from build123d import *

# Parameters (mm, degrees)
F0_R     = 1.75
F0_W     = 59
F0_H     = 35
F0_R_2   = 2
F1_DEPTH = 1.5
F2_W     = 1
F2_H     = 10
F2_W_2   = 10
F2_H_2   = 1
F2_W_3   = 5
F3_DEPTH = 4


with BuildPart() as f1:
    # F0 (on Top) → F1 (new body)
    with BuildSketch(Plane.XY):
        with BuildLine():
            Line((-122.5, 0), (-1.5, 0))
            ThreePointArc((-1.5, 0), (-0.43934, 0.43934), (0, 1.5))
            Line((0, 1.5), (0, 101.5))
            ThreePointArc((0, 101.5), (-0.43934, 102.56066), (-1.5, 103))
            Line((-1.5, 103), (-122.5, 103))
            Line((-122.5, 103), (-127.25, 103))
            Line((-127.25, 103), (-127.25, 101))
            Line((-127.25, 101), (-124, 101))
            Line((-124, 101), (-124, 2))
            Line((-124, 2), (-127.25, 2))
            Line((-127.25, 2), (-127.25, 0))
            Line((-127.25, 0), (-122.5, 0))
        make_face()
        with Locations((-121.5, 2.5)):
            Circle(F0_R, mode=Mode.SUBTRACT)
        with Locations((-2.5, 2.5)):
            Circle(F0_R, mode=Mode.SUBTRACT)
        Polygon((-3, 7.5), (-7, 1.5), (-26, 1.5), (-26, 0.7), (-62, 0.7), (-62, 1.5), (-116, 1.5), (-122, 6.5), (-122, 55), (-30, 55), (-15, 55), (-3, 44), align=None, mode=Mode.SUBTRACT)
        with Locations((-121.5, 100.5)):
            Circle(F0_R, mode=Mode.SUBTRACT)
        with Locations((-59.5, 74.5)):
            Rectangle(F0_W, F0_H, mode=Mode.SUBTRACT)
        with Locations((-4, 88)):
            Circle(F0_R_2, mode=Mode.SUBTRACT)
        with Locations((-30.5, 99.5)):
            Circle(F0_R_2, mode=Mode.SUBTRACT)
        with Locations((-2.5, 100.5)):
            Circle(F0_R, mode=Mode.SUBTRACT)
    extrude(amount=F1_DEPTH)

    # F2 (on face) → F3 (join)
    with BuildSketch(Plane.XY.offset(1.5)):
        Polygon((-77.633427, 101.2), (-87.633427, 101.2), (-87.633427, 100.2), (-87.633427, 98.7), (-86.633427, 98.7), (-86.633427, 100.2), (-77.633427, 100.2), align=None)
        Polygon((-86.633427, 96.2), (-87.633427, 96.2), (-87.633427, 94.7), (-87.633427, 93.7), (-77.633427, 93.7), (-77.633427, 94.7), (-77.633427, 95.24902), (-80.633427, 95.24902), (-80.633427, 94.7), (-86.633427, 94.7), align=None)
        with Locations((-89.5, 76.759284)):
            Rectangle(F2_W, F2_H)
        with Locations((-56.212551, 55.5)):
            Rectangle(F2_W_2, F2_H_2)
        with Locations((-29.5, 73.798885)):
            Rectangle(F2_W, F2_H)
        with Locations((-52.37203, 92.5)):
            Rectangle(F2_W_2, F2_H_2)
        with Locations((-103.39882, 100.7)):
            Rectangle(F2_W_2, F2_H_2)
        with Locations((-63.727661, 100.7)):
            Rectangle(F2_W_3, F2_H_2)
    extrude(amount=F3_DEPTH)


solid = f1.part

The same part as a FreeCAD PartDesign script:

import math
import FreeCAD as App
import Part
import Sketcher
from FreeCAD import Vector
Q = App.Units.Quantity


def add_polygon(sketch, points):
    """Adds a closed chain of lines whose ends are joined by coincident constraints."""
    first, n = sketch.GeometryCount, len(points)
    for a, b in zip(points, points[1:] + points[:1]):
        sketch.addGeometry(Part.LineSegment(App.Vector(*a, 0), App.Vector(*b, 0)), False)
    for i in range(n):
        sketch.addConstraint(Sketcher.Constraint("Coincident", first + i, 2, first + (i + 1) % n, 1))

doc = App.newDocument("Part")
body = doc.addObject("PartDesign::Body", "Body")

# Sketch on XY plane
sketch1 = doc.addObject("Sketcher::SketchObject", "Sketch")
body.addObject(sketch1)
sketch1.AttachmentSupport = (doc.XY_Plane, [""])
sketch1.MapMode = "FlatFace"
sketch1.addGeometry(Part.ArcOfCircle(Part.Circle(Vector(-1.5, 1.5, 0), Vector(0, 0, 1), 1.5), math.radians(-90), math.radians(0)), False)  # 0
sketch1.addGeometry(Part.LineSegment(Vector(0, 1.5, 0), Vector(0, 101.5, 0)), False)  # 1
sketch1.addGeometry(Part.ArcOfCircle(Part.Circle(Vector(-1.5, 101.5, 0), Vector(0, 0, 1), 1.5), math.radians(0), math.radians(90)), False)  # 2
sketch1.addGeometry(Part.LineSegment(Vector(-1.5, 103, 0), Vector(-127.2, 103, 0)), False)  # 3
sketch1.addGeometry(Part.LineSegment(Vector(-127.2, 103, 0), Vector(-127.2, 101, 0)), False)  # 4
sketch1.addGeometry(Part.LineSegment(Vector(-127.2, 101, 0), Vector(-124, 101, 0)), False)  # 5
sketch1.addGeometry(Part.LineSegment(Vector(-124, 101, 0), Vector(-124, 2, 0)), False)  # 6
sketch1.addGeometry(Part.LineSegment(Vector(-124, 2, 0), Vector(-127.2, 2, 0)), False)  # 7
sketch1.addGeometry(Part.LineSegment(Vector(-127.2, 2, 0), Vector(-127.2, 0, 0)), False)  # 8
sketch1.addGeometry(Part.LineSegment(Vector(-127.2, 0, 0), Vector(-1.5, 0, 0)), False)  # 9
sketch1.addGeometry(Part.Circle(Vector(-121.5, 2.5, 0), Vector(0, 0, 1), 1.8), False)  # 10
add_polygon(sketch1, [(-3, 44), (-3, 7.5), (-7, 1.5), (-26, 1.5), (-26, 0.7), (-62, 0.7), (-62, 1.5), (-116, 1.5), (-122, 6.5), (-122, 55), (-15, 55)])  # lines 11-21
sketch1.addGeometry(Part.Circle(Vector(-2.5, 2.5, 0), Vector(0, 0, 1), 1.8), False)  # 22
sketch1.addGeometry(Part.Circle(Vector(-121.5, 100.5, 0), Vector(0, 0, 1), 1.8), False)  # 23
add_polygon(sketch1, [(-30, 57), (-89, 57), (-89, 92), (-30, 92)])  # lines 24-27
sketch1.addGeometry(Part.Circle(Vector(-4, 88, 0), Vector(0, 0, 1), 2), False)  # 28
sketch1.addGeometry(Part.Circle(Vector(-30.5, 99.5, 0), Vector(0, 0, 1), 2), False)  # 29
sketch1.addGeometry(Part.Circle(Vector(-2.5, 100.5, 0), Vector(0, 0, 1), 1.8), False)  # 30
sketch1.addConstraint(Sketcher.Constraint("Tangent", 0, 2, 1, 1))
sketch1.addConstraint(Sketcher.Constraint("Tangent", 1, 2, 2, 1))
sketch1.addConstraint(Sketcher.Constraint("Tangent", 2, 2, 3, 1))
sketch1.addConstraint(Sketcher.Constraint("Coincident", 3, 2, 4, 1))
sketch1.addConstraint(Sketcher.Constraint("Coincident", 4, 2, 5, 1))
sketch1.addConstraint(Sketcher.Constraint("Coincident", 5, 2, 6, 1))
sketch1.addConstraint(Sketcher.Constraint("Coincident", 6, 2, 7, 1))
sketch1.addConstraint(Sketcher.Constraint("Coincident", 7, 2, 8, 1))
sketch1.addConstraint(Sketcher.Constraint("Coincident", 8, 2, 9, 1))
sketch1.addConstraint(Sketcher.Constraint("Tangent", 9, 2, 0, 1))
sketch1.addConstraint(Sketcher.Constraint("Vertical", 1))
sketch1.addConstraint(Sketcher.Constraint("Horizontal", 3))
sketch1.addConstraint(Sketcher.Constraint("Vertical", 4))
sketch1.addConstraint(Sketcher.Constraint("Horizontal", 5))
sketch1.addConstraint(Sketcher.Constraint("Vertical", 6))
sketch1.addConstraint(Sketcher.Constraint("Horizontal", 7))
sketch1.addConstraint(Sketcher.Constraint("Vertical", 8))
sketch1.addConstraint(Sketcher.Constraint("Horizontal", 9))
sketch1.addConstraint(Sketcher.Constraint("Vertical", 11))
sketch1.addConstraint(Sketcher.Constraint("Horizontal", 13))
sketch1.addConstraint(Sketcher.Constraint("Vertical", 14))
sketch1.addConstraint(Sketcher.Constraint("Horizontal", 15))
sketch1.addConstraint(Sketcher.Constraint("Vertical", 16))
sketch1.addConstraint(Sketcher.Constraint("Horizontal", 17))
sketch1.addConstraint(Sketcher.Constraint("Vertical", 19))
sketch1.addConstraint(Sketcher.Constraint("Horizontal", 20))
sketch1.addConstraint(Sketcher.Constraint("Horizontal", 24))
sketch1.addConstraint(Sketcher.Constraint("Vertical", 25))
sketch1.addConstraint(Sketcher.Constraint("Horizontal", 26))
sketch1.addConstraint(Sketcher.Constraint("Vertical", 27))
sketch1.addConstraint(Sketcher.Constraint("Equal", 0, 2))
sketch1.addConstraint(Sketcher.Constraint("Equal", 10, 22))
sketch1.addConstraint(Sketcher.Constraint("Equal", 22, 23))
sketch1.addConstraint(Sketcher.Constraint("Equal", 28, 29))
sketch1.addConstraint(Sketcher.Constraint("Equal", 23, 30))
sketch1.addConstraint(Sketcher.Constraint("PointOnObject", 0, 2, -2))
sketch1.addConstraint(Sketcher.Constraint("PointOnObject", 8, 2, -1))
sketch1.addConstraint(Sketcher.Constraint("Horizontal", 10, 3, 22, 3))
sketch1.addConstraint(Sketcher.Constraint("Horizontal", 23, 3, 30, 3))
sketch1.addConstraint(Sketcher.Constraint("Horizontal", 0, 2, 12, 2))
sketch1.addConstraint(Sketcher.Constraint("Horizontal", 13, 2, 16, 2))
sketch1.addConstraint(Sketcher.Constraint("Vertical", 10, 3, 23, 3))
sketch1.addConstraint(Sketcher.Constraint("Vertical", 22, 3, 30, 3))
sketch1.addConstraint(Sketcher.Constraint("Vertical", 4, 2, 7, 2))
sketch1.addConstraint(Sketcher.Constraint("Equal", 4, 8))
sketch1.addConstraint(Sketcher.Constraint("Diameter", 28, Q("4 mm")))
sketch1.addConstraint(Sketcher.Constraint("Diameter", 10, Q("3.5 mm")))
sketch1.addConstraint(Sketcher.Constraint("Radius", 0, Q("1.500001 mm")))
sketch1.addConstraint(Sketcher.Constraint("DistanceX", 13, 2, 13, 1, Q("19 mm")))
sketch1.addConstraint(Sketcher.Constraint("DistanceX", 15, 2, 15, 1, Q("36 mm")))
sketch1.addConstraint(Sketcher.Constraint("DistanceX", 17, 2, 17, 1, Q("54 mm")))
sketch1.addConstraint(Sketcher.Constraint("DistanceX", 20, 1, 20, 2, Q("107 mm")))
sketch1.addConstraint(Sketcher.Constraint("DistanceX", 24, 2, 24, 1, Q("59 mm")))
sketch1.addConstraint(Sketcher.Constraint("DistanceY", 1, 1, 1, 2, Q("100 mm")))
sketch1.addConstraint(Sketcher.Constraint("DistanceY", 4, 2, 4, 1, Q("2 mm")))
sketch1.addConstraint(Sketcher.Constraint("DistanceY", 25, 1, 25, 2, Q("35 mm")))
sketch1.addConstraint(Sketcher.Constraint("DistanceY", 11, 2, 11, 1, Q("36.5 mm")))
sketch1.addConstraint(Sketcher.Constraint("DistanceY", 14, 2, 14, 1, Q("0.8 mm")))
sketch1.addConstraint(Sketcher.Constraint("DistanceY", 19, 1, 19, 2, Q("48.5 mm")))
sketch1.addConstraint(Sketcher.Constraint("DistanceX", 28, 3, -1, 1, Q("4 mm")))
sketch1.addConstraint(Sketcher.Constraint("DistanceY", -1, 1, 28, 3, Q("88 mm")))
sketch1.addConstraint(Sketcher.Constraint("DistanceX", 5, 2, -1, 1, Q("124 mm")))
sketch1.addConstraint(Sketcher.Constraint("DistanceX", 11, 2, -1, 1, Q("3 mm")))
sketch1.addConstraint(Sketcher.Constraint("DistanceX", 12, 2, -1, 1, Q("7 mm")))
sketch1.addConstraint(Sketcher.Constraint("DistanceX", 18, 2, -1, 1, Q("122 mm")))
sketch1.addConstraint(Sketcher.Constraint("DistanceY", -1, 1, 19, 2, Q("55 mm")))
sketch1.addConstraint(Sketcher.Constraint("DistanceY", -1, 1, 21, 2, Q("44 mm")))
sketch1.addConstraint(Sketcher.Constraint("DistanceX", 24, 2, -1, 1, Q("89 mm")))
sketch1.addConstraint(Sketcher.Constraint("DistanceY", -1, 1, 24, 2, Q("57 mm")))
sketch1.addConstraint(Sketcher.Constraint("DistanceX", 10, 3, 0, 3, Q("119.999999 mm")))
sketch1.addConstraint(Sketcher.Constraint("DistanceY", 0, 3, 10, 3, Q("0.999999 mm")))
sketch1.addConstraint(Sketcher.Constraint("DistanceX", 22, 3, 0, 3, Q("0.999999 mm")))
sketch1.addConstraint(Sketcher.Constraint("DistanceY", 10, 3, 23, 3, Q("98 mm")))
sketch1.addConstraint(Sketcher.Constraint("DistanceX", 29, 3, 2, 3, Q("28.999999 mm")))
sketch1.addConstraint(Sketcher.Constraint("DistanceY", 29, 3, 2, 3, Q("1.999999 mm")))
sketch1.addConstraint(Sketcher.Constraint("DistanceX", 3, 2, 3, 1, Q("125.75 mm")))
pad1 = doc.addObject("PartDesign::Pad", "Pad")
body.addObject(pad1)
pad1.Profile = sketch1
pad1.Length = 1.5

# Sketch on XY plane
sketch2 = doc.addObject("Sketcher::SketchObject", "Sketch001")
body.addObject(sketch2)
sketch2.AttachmentSupport = (doc.XY_Plane, [""])
sketch2.MapMode = "FlatFace"
sketch2.AttachmentOffset = App.Placement(Vector(0, 0, 1.5), App.Rotation())
add_polygon(sketch2, [(-77.6, 101.2), (-87.6, 101.2), (-87.6, 98.7), (-86.6, 98.7), (-86.6, 100.2), (-77.6, 100.2)])  # lines 0-5
add_polygon(sketch2, [(-86.6, 96.2), (-87.6, 96.2), (-87.6, 93.7), (-77.6, 93.7), (-77.6, 95.2), (-80.6, 95.2), (-80.6, 94.7), (-86.6, 94.7)])  # lines 6-13
add_polygon(sketch2, [(-90, 81.8), (-90, 71.8), (-89, 71.8), (-89, 81.8)])  # lines 14-17
add_polygon(sketch2, [(-61.2, 56), (-61.2, 55), (-51.2, 55), (-51.2, 56)])  # lines 18-21
add_polygon(sketch2, [(-30, 78.8), (-30, 68.8), (-29, 68.8), (-29, 78.8)])  # lines 22-25
add_polygon(sketch2, [(-57.4, 93), (-57.4, 92), (-47.4, 92), (-47.4, 93)])  # lines 26-29
add_polygon(sketch2, [(-108.4, 101.2), (-108.4, 100.2), (-98.4, 100.2), (-98.4, 101.2)])  # lines 30-33
add_polygon(sketch2, [(-66.2, 101.2), (-66.2, 100.2), (-61.2, 100.2), (-61.2, 101.2)])  # lines 34-37
sketch2.addConstraint(Sketcher.Constraint("Horizontal", 0))
sketch2.addConstraint(Sketcher.Constraint("Vertical", 1))
sketch2.addConstraint(Sketcher.Constraint("Horizontal", 2))
sketch2.addConstraint(Sketcher.Constraint("Vertical", 3))
sketch2.addConstraint(Sketcher.Constraint("Horizontal", 4))
sketch2.addConstraint(Sketcher.Constraint("Vertical", 5))
sketch2.addConstraint(Sketcher.Constraint("Horizontal", 6))
sketch2.addConstraint(Sketcher.Constraint("Vertical", 7))
sketch2.addConstraint(Sketcher.Constraint("Horizontal", 8))
sketch2.addConstraint(Sketcher.Constraint("Vertical", 9))
sketch2.addConstraint(Sketcher.Constraint("Horizontal", 10))
sketch2.addConstraint(Sketcher.Constraint("Vertical", 11))
sketch2.addConstraint(Sketcher.Constraint("Horizontal", 12))
sketch2.addConstraint(Sketcher.Constraint("Vertical", 13))
sketch2.addConstraint(Sketcher.Constraint("Vertical", 14))
sketch2.addConstraint(Sketcher.Constraint("Horizontal", 15))
sketch2.addConstraint(Sketcher.Constraint("Vertical", 16))
sketch2.addConstraint(Sketcher.Constraint("Horizontal", 17))
sketch2.addConstraint(Sketcher.Constraint("Vertical", 18))
sketch2.addConstraint(Sketcher.Constraint("Horizontal", 19))
sketch2.addConstraint(Sketcher.Constraint("Vertical", 20))
sketch2.addConstraint(Sketcher.Constraint("Horizontal", 21))
sketch2.addConstraint(Sketcher.Constraint("Vertical", 22))
sketch2.addConstraint(Sketcher.Constraint("Horizontal", 23))
sketch2.addConstraint(Sketcher.Constraint("Vertical", 24))
sketch2.addConstraint(Sketcher.Constraint("Horizontal", 25))
sketch2.addConstraint(Sketcher.Constraint("Vertical", 26))
sketch2.addConstraint(Sketcher.Constraint("Horizontal", 27))
sketch2.addConstraint(Sketcher.Constraint("Vertical", 28))
sketch2.addConstraint(Sketcher.Constraint("Horizontal", 29))
sketch2.addConstraint(Sketcher.Constraint("Vertical", 30))
sketch2.addConstraint(Sketcher.Constraint("Horizontal", 31))
sketch2.addConstraint(Sketcher.Constraint("Vertical", 32))
sketch2.addConstraint(Sketcher.Constraint("Horizontal", 33))
sketch2.addConstraint(Sketcher.Constraint("Vertical", 34))
sketch2.addConstraint(Sketcher.Constraint("Horizontal", 35))
sketch2.addConstraint(Sketcher.Constraint("Vertical", 36))
sketch2.addConstraint(Sketcher.Constraint("Horizontal", 37))
sketch2.addConstraint(Sketcher.Constraint("Horizontal", 4, 2, 30, 2))
sketch2.addConstraint(Sketcher.Constraint("Horizontal", 5, 2, 32, 2))
sketch2.addConstraint(Sketcher.Constraint("Horizontal", 31, 2, 34, 2))
sketch2.addConstraint(Sketcher.Constraint("Horizontal", 33, 2, 36, 2))
sketch2.addConstraint(Sketcher.Constraint("Vertical", 1, 2, 6, 2))
sketch2.addConstraint(Sketcher.Constraint("Vertical", 5, 2, 8, 2))
sketch2.addConstraint(Sketcher.Constraint("Vertical", 3, 2, 12, 2))
sketch2.addConstraint(Sketcher.Constraint("Equal", 6, 15))
sketch2.addConstraint(Sketcher.Constraint("Equal", 8, 19))
sketch2.addConstraint(Sketcher.Constraint("Equal", 17, 23))
sketch2.addConstraint(Sketcher.Constraint("Equal", 21, 27))
sketch2.addConstraint(Sketcher.Constraint("Equal", 29, 31))
sketch2.addConstraint(Sketcher.Constraint("Equal", 25, 5))
sketch2.addConstraint(Sketcher.Constraint("Equal", 1, 7))
sketch2.addConstraint(Sketcher.Constraint("Equal", 3, 13))
sketch2.addConstraint(Sketcher.Constraint("Equal", 33, 14))
sketch2.addConstraint(Sketcher.Constraint("Equal", 5, 18))
sketch2.addConstraint(Sketcher.Constraint("Equal", 16, 22))
sketch2.addConstraint(Sketcher.Constraint("Equal", 20, 26))
sketch2.addConstraint(Sketcher.Constraint("DistanceX", 0, 2, 0, 1, Q("10 mm")))
sketch2.addConstraint(Sketcher.Constraint("DistanceX", 2, 1, 2, 2, Q("1 mm")))
sketch2.addConstraint(Sketcher.Constraint("DistanceX", 10, 2, 10, 1, Q("3 mm")))
sketch2.addConstraint(Sketcher.Constraint("DistanceX", 35, 1, 35, 2, Q("5 mm")))
sketch2.addConstraint(Sketcher.Constraint("DistanceY", 1, 2, 1, 1, Q("2.5 mm")))
sketch2.addConstraint(Sketcher.Constraint("DistanceX", 14, 2, -1, 1, Q("90 mm")))
sketch2.addConstraint(Sketcher.Constraint("DistanceY", -1, 1, 18, 2, Q("55 mm")))
sketch2.addConstraint(Sketcher.Constraint("DistanceX", 22, 2, -1, 1, Q("30 mm")))
sketch2.addConstraint(Sketcher.Constraint("DistanceY", -1, 1, 26, 2, Q("92 mm")))
sketch2.addConstraint(Sketcher.Constraint("DistanceY", 6, 2, 3, 2, Q("4 mm")))
sketch2.addConstraint(Sketcher.Constraint("DistanceY", -1, 1, 0, 2, Q("101.2 mm")))
sketch2.addConstraint(Sketcher.Constraint("DistanceY", 9, 1, 9, 2, Q("1.54902 mm")))
sketch2.addConstraint(Sketcher.Constraint("DistanceX", 18, 2, -1, 1, Q("61.212551 mm")))
sketch2.addConstraint(Sketcher.Constraint("DistanceX", 26, 2, -1, 1, Q("57.37203 mm")))
sketch2.addConstraint(Sketcher.Constraint("DistanceX", 30, 2, -1, 1, Q("108.39882 mm")))
sketch2.addConstraint(Sketcher.Constraint("DistanceX", 34, 2, -1, 1, Q("66.227661 mm")))
sketch2.addConstraint(Sketcher.Constraint("DistanceX", 0, 2, -1, 1, Q("87.633427 mm")))
sketch2.addConstraint(Sketcher.Constraint("DistanceY", -1, 1, 14, 2, Q("71.759284 mm")))
sketch2.addConstraint(Sketcher.Constraint("DistanceY", -1, 1, 22, 2, Q("68.798885 mm")))
pad2 = doc.addObject("PartDesign::Pad", "Pad001")
body.addObject(pad2)
pad2.Profile = sketch2
pad2.Length = 4

doc.recompute()
